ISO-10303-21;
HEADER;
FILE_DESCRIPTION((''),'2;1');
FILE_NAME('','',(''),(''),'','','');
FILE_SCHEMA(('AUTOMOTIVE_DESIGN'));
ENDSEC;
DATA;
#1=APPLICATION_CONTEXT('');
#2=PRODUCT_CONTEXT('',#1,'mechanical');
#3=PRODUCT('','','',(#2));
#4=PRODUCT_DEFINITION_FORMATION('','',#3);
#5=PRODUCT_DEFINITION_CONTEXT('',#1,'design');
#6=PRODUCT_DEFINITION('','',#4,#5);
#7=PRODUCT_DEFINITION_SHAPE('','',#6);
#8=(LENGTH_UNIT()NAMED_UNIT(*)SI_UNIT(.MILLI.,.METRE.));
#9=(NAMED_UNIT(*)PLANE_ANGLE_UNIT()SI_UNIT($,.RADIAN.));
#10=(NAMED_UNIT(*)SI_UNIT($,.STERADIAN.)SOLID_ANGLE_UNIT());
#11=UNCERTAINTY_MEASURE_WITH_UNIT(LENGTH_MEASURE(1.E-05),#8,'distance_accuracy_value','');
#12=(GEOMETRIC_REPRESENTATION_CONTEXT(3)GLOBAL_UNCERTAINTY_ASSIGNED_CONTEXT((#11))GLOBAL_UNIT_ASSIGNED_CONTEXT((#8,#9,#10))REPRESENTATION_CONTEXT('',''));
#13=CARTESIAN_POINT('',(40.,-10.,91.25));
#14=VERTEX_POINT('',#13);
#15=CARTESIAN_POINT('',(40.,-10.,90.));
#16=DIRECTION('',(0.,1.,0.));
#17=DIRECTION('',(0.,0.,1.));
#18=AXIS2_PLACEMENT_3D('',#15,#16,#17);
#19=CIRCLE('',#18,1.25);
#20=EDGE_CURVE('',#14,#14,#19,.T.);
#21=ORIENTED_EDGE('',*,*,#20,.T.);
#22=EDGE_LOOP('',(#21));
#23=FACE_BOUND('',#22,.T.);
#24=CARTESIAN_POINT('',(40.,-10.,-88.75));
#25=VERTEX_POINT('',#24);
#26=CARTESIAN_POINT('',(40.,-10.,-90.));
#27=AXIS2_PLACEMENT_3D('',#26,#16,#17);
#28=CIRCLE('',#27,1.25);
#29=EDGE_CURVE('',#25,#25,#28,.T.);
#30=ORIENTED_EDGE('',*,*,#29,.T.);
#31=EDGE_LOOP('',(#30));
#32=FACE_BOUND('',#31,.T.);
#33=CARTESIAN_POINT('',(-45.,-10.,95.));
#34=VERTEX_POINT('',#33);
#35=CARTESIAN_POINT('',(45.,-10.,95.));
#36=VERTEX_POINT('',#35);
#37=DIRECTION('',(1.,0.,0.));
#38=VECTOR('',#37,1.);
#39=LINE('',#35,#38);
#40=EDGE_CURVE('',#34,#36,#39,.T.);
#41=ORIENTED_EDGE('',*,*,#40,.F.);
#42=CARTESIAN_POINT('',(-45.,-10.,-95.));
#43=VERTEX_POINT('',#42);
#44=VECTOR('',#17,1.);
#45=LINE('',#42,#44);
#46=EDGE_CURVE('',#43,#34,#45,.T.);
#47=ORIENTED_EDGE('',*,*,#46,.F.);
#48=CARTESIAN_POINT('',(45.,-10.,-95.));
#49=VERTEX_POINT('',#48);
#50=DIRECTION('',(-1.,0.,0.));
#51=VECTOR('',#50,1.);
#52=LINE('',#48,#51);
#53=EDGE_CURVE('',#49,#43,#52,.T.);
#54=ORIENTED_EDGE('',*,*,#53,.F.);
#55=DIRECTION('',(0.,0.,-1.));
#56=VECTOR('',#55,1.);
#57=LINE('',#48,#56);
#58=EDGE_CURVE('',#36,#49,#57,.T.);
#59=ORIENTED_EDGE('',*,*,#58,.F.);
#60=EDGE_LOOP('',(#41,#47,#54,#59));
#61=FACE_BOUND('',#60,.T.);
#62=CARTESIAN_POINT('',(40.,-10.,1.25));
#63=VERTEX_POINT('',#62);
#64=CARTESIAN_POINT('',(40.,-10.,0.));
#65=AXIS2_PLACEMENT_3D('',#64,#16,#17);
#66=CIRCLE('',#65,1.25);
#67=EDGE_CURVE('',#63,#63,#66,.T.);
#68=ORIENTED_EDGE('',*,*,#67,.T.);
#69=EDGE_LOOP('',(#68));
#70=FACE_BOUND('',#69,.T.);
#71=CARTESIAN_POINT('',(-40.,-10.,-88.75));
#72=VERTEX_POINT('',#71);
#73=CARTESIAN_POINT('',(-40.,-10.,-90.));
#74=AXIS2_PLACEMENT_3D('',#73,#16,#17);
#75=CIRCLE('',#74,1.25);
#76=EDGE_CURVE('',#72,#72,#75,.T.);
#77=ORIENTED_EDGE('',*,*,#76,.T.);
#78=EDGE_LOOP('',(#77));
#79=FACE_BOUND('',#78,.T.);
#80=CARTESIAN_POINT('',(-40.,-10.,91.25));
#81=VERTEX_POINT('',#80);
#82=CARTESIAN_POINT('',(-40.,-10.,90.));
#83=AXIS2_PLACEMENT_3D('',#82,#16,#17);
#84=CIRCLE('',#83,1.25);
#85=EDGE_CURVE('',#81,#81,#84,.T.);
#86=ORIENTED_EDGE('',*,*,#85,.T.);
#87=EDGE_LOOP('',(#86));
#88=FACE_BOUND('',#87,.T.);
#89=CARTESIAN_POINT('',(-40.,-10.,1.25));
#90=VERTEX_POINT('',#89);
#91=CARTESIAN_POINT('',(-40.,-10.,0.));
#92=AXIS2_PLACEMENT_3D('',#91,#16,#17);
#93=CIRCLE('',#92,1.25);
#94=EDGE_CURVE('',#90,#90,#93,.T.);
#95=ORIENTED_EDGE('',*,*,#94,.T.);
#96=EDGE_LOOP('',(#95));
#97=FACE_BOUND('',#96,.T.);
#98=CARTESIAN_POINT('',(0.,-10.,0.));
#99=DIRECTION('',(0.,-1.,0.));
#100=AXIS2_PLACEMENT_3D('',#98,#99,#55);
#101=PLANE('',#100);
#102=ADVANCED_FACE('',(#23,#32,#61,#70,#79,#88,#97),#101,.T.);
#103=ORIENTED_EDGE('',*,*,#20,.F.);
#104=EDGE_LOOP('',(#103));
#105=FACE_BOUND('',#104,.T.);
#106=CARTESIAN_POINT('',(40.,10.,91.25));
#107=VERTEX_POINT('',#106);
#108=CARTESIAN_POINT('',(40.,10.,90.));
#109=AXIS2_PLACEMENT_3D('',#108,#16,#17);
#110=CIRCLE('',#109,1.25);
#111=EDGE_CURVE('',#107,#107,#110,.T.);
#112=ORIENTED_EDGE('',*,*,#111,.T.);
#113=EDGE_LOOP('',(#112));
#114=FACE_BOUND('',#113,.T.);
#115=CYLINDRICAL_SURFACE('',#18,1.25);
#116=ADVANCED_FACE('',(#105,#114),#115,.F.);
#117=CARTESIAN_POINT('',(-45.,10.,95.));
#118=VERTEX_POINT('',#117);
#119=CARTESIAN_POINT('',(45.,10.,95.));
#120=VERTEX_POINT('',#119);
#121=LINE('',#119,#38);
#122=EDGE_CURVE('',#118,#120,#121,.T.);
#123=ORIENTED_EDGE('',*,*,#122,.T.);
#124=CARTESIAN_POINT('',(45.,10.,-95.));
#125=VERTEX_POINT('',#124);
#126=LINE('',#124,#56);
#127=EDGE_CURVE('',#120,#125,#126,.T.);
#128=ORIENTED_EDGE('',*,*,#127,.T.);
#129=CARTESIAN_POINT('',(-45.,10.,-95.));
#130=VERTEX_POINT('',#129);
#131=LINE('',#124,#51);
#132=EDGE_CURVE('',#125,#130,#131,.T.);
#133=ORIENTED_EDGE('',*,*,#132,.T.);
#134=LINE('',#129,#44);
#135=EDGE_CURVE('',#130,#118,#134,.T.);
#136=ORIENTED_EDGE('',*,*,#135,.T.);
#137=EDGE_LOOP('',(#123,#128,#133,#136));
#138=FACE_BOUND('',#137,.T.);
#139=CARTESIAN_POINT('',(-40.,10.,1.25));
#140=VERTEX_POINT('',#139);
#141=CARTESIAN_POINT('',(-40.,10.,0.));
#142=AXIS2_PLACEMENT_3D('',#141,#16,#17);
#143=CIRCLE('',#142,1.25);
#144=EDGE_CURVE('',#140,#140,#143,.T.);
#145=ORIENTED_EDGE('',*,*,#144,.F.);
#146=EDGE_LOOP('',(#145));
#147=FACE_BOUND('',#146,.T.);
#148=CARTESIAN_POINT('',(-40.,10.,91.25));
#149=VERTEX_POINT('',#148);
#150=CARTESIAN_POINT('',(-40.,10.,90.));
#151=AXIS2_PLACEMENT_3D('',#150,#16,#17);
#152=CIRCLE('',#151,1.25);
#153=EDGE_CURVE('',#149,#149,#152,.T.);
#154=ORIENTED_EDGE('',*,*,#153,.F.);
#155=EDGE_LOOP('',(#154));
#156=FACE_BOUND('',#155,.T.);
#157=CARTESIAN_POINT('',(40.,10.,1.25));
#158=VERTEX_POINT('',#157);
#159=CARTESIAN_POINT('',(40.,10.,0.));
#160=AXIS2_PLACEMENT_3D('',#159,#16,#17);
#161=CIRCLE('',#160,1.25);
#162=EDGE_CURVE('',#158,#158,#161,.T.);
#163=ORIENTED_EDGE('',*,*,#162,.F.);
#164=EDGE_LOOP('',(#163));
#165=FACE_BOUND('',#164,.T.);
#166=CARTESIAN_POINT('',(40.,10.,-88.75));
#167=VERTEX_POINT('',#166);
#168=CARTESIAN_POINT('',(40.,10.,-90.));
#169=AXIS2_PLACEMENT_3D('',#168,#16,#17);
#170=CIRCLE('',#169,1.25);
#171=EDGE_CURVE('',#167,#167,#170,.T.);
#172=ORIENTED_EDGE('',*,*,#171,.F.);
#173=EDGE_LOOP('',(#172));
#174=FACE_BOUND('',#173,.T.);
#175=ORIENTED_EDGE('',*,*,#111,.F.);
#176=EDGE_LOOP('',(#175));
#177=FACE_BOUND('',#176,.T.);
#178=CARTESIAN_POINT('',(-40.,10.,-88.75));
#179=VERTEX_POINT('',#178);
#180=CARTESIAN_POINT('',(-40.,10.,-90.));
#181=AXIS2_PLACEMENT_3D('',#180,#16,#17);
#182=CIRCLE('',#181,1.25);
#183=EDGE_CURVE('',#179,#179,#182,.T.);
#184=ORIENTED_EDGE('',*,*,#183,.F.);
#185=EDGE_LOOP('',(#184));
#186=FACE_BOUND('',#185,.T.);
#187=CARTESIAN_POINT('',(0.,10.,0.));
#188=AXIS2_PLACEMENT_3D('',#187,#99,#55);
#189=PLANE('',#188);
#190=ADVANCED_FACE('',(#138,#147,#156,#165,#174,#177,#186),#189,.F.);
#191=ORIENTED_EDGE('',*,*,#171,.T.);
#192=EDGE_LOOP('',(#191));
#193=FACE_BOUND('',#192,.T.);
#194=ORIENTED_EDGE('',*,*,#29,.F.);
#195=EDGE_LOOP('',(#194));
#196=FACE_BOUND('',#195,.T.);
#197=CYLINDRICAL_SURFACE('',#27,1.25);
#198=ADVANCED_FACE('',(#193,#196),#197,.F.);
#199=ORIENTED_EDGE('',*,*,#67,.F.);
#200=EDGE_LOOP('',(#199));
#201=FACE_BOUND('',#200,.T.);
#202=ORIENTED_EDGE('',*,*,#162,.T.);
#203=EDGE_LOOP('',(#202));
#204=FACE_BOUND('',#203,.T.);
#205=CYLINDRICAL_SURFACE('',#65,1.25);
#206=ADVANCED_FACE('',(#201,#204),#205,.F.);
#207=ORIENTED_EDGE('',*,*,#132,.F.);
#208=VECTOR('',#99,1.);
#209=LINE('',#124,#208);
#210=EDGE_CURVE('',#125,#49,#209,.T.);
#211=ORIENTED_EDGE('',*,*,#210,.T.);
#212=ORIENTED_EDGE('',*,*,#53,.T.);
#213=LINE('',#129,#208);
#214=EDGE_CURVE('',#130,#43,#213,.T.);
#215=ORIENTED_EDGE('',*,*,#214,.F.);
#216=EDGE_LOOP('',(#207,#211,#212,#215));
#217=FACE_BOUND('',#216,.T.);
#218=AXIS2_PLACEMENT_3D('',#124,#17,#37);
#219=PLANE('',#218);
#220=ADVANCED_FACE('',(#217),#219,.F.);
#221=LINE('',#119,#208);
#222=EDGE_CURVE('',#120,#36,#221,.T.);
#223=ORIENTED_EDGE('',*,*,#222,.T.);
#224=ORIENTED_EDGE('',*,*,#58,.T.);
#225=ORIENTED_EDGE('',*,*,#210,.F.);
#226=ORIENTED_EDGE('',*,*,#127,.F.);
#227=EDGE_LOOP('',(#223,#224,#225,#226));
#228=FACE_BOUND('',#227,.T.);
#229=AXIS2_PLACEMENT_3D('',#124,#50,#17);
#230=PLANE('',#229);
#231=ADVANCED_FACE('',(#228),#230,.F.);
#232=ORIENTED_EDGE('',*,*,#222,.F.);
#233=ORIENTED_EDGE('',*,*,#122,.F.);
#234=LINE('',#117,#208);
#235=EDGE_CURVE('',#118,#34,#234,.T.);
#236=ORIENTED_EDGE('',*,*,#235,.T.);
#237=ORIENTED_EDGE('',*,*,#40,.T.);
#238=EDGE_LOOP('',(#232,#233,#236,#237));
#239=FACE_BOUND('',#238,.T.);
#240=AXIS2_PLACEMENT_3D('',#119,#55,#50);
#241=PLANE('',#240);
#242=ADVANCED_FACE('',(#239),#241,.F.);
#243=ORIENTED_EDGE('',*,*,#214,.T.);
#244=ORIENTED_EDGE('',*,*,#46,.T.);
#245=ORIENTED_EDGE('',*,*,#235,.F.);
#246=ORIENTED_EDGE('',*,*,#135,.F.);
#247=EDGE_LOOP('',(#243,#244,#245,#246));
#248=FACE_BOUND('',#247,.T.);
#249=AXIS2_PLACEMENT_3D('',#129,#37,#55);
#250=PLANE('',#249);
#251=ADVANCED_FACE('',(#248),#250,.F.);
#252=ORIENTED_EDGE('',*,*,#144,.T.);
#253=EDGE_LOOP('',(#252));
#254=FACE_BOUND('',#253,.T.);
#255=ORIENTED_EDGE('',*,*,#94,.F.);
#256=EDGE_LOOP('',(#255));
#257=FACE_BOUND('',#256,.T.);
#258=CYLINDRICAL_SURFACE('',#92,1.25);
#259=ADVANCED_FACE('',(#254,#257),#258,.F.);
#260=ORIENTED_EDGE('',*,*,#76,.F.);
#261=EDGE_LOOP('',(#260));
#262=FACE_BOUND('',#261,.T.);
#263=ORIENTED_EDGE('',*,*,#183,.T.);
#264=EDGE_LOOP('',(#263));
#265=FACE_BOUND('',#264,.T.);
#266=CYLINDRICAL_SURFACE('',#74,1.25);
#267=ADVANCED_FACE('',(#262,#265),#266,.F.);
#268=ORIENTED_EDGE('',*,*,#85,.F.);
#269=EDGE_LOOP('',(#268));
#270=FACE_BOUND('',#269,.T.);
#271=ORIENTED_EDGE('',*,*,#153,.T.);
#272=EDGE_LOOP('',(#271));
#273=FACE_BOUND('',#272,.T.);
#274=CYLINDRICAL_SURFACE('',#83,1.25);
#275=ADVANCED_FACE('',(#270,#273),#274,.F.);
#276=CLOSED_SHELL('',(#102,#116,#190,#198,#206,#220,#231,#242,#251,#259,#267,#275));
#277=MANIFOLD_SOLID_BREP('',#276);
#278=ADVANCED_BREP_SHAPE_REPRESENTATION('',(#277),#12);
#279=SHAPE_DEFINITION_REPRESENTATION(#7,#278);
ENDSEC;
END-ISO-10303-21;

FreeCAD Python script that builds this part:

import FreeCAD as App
import Part
import Sketcher
from FreeCAD import Vector

doc = App.newDocument("Part")
body = doc.addObject("PartDesign::Body", "Body")

sketch1 = body.newObject("Sketcher::SketchObject", "Sketch")
sketch1.AttachmentSupport = (doc.getObject("XZ_Plane"), [""])
sketch1.MapMode = "FlatFace"
sketch1.addGeometry([
    Part.LineSegment(Vector(-45, -95, 0), Vector(-45, 95, 0)),
    Part.LineSegment(Vector(-45, 95, 0), Vector(45, 95, 0)),
    Part.LineSegment(Vector(45, 95, 0), Vector(45, -95, 0)),
    Part.LineSegment(Vector(45, -95, 0), Vector(-45, -95, 0)),
], False)
sketch1.addConstraint([
    Sketcher.Constraint("Coincident", 0, 2, 1, 1),
    Sketcher.Constraint("Coincident", 1, 2, 2, 1),
    Sketcher.Constraint("Coincident", 2, 2, 3, 1),
    Sketcher.Constraint("Coincident", 3, 2, 0, 1),
    Sketcher.Constraint("Vertical", 0),
    Sketcher.Constraint("Horizontal", 1),
    Sketcher.Constraint("Vertical", 2),
    Sketcher.Constraint("Horizontal", 3),
    Sketcher.Constraint("Symmetric", 0, 2, 2, 2, -1, 1),
    Sketcher.Constraint("DistanceX", 1, 1, 1, 2, 90.0),
    Sketcher.Constraint("DistanceY", 0, 1, 0, 2, 190.0),
])
pad1 = body.newObject("PartDesign::Pad", "Pad")
pad1.Profile = sketch1
pad1.Length = 20
pad1.Midplane = True

sketch2 = body.newObject("Sketcher::SketchObject", "Sketch001")
sketch2.AttachmentSupport = (doc.getObject("XZ_Plane"), [""])
sketch2.MapMode = "FlatFace"
sketch2.AttachmentOffset = App.Placement(Vector(0, 0, -10), App.Rotation())
sketch2.addGeometry([
    Part.Circle(Vector(-40, 90, 0), Vector(0, 0, 1), 1.2),
    Part.Circle(Vector(40, 90, 0), Vector(0, 0, 1), 1.2),
    Part.Circle(Vector(-40, 0, 0), Vector(0, 0, 1), 1.2),
    Part.Circle(Vector(-40, -90, 0), Vector(0, 0, 1), 1.2),
    Part.Circle(Vector(40, -90, 0), Vector(0, 0, 1), 1.2),
    Part.Circle(Vector(40, 0, 0), Vector(0, 0, 1), 1.2),
], False)
sketch2.addConstraint([
    Sketcher.Constraint("Equal", 0, 1),
    Sketcher.Constraint("Equal", 1, 2),
    Sketcher.Constraint("Equal", 2, 3),
    Sketcher.Constraint("Equal", 3, 4),
    Sketcher.Constraint("Equal", 4, 5),
    Sketcher.Constraint("Symmetric", 1, 3, 3, 3, -1, 1),
    Sketcher.Constraint("Symmetric", 0, 3, 4, 3, -1, 1),
    Sketcher.Constraint("Symmetric", 2, 3, 5, 3, -1, 1),
    Sketcher.Constraint("Symmetric", 0, 3, 1, 3, -2),
    Sketcher.Constraint("PointOnObject", 2, 3, -1),
    Sketcher.Constraint("Vertical", 0, 3, 2, 3),
    Sketcher.Constraint("Diameter", 0, 2.5),
    Sketcher.Constraint("DistanceX", 0, 3, -1, 1, 40.0),
    Sketcher.Constraint("DistanceY", -1, 1, 0, 3, 90.0),
])
pocket1 = body.newObject("PartDesign::Pocket", "Pocket")
pocket1.Profile = sketch2
pocket1.Type = "ThroughAll"
pocket1.Reversed = True

doc.recompute()
